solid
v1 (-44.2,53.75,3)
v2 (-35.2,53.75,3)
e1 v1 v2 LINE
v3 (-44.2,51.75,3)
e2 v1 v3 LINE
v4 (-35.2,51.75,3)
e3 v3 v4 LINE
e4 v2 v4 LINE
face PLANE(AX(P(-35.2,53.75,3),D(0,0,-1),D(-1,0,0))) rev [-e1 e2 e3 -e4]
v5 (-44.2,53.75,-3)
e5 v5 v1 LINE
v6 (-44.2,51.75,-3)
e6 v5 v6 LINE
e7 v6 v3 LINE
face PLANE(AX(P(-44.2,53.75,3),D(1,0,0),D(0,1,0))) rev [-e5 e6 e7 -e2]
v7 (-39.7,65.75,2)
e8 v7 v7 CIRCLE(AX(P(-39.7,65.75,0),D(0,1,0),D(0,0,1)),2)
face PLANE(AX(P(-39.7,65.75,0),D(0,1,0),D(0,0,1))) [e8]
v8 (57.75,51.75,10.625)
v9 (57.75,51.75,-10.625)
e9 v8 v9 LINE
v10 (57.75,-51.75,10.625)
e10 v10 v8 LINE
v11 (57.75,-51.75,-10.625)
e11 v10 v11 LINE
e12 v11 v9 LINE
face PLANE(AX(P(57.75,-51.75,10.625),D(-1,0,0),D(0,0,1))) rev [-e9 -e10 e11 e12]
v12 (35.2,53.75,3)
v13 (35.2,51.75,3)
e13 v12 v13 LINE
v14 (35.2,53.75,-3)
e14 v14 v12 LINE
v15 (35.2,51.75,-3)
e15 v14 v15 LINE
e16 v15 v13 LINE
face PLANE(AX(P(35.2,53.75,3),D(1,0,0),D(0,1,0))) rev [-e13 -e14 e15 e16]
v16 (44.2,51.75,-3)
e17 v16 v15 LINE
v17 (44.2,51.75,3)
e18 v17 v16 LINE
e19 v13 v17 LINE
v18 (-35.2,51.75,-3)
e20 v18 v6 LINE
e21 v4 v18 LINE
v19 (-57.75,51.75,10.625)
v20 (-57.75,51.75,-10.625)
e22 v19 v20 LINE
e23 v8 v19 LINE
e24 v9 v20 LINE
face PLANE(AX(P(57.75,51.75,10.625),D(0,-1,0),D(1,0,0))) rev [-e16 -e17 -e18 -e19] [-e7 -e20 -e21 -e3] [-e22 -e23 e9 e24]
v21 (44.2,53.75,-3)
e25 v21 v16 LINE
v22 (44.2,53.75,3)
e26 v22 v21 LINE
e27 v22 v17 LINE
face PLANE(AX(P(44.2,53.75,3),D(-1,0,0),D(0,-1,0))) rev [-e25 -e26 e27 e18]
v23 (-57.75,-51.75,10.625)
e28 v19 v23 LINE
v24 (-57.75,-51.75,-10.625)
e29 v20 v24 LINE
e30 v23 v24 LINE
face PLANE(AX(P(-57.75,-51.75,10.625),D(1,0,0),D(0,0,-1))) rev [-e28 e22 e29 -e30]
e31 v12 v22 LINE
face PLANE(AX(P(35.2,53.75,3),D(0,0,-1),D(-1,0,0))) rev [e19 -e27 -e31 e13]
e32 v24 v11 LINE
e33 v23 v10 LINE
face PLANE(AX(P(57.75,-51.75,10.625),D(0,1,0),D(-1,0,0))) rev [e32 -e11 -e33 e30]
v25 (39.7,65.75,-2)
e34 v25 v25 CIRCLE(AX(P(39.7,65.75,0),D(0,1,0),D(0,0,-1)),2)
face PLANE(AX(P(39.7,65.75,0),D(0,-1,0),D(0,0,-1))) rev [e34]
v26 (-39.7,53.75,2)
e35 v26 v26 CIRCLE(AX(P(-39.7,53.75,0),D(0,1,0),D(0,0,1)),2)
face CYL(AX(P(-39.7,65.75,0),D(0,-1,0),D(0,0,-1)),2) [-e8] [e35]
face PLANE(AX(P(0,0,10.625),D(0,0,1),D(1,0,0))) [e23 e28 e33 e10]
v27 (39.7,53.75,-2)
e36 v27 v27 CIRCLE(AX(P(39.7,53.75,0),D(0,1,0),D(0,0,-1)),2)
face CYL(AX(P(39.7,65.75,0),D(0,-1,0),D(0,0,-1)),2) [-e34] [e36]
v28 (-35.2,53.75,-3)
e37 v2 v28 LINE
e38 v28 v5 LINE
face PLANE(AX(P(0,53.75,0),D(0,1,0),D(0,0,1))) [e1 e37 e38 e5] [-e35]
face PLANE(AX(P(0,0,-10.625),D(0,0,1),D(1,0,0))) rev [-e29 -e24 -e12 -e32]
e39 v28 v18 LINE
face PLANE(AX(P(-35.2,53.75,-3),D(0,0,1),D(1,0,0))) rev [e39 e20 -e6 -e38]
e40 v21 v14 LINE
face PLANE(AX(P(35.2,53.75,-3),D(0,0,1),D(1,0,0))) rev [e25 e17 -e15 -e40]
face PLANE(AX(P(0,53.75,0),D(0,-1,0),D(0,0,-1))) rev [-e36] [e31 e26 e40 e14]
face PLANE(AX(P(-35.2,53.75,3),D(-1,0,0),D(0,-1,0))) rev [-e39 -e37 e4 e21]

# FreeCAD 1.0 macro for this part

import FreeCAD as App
import Part
import Sketcher

V = App.Vector
Q = App.Units.Quantity


def add_polygon(sketch, points):
    """Adds a closed chain of lines whose ends are joined by coincident constraints."""
    first, n = sketch.GeometryCount, len(points)
    for a, b in zip(points, points[1:] + points[:1]):
        sketch.addGeometry(Part.LineSegment(App.Vector(*a, 0), App.Vector(*b, 0)), False)
    for i in range(n):
        sketch.addConstraint(Sketcher.Constraint("Coincident", first + i, 2, first + (i + 1) % n, 1))

doc = App.newDocument("Part")
body = doc.addObject("PartDesign::Body", "Body")

# Sketch on XY plane
sketch1 = body.newObject("Sketcher::SketchObject", "Sketch")
sketch1.AttachmentSupport = (doc.getObject("XY_Plane"), [""])
sketch1.MapMode = "FlatFace"
add_polygon(sketch1, [(-58, 52), (-58, -52), (58, -52), (58, 52)])  # lines 0-3
sketch1.addConstraint([
    Sketcher.Constraint("Vertical", 0),
    Sketcher.Constraint("Horizontal", 1),
    Sketcher.Constraint("Vertical", 2),
    Sketcher.Constraint("Horizontal", 3),
    Sketcher.Constraint("Symmetric", 0, 2, 2, 2, -1, 1),
    Sketcher.Constraint("DistanceX", 1, 1, 1, 2, Q("115.5 mm")),
    Sketcher.Constraint("DistanceY", 0, 2, 0, 1, Q("103.5 mm")),
])
pad1 = body.newObject("PartDesign::Pad", "Pad")
pad1.Profile = sketch1
pad1.Length = 21.25
pad1.Midplane = True

# Sketch on XZ plane
sketch2 = body.newObject("Sketcher::SketchObject", "Sketch001")
sketch2.AttachmentSupport = (doc.getObject("XZ_Plane"), [""])
sketch2.MapMode = "FlatFace"
sketch2.AttachmentOffset = App.Placement(V(0, 0, -51.75), App.Rotation())
add_polygon(sketch2, [(-44, -3), (-44, 3), (-35, 3), (-35, -3)])  # lines 0-3
add_polygon(sketch2, [(35, -3), (35, 3), (44, 3), (44, -3)])  # lines 4-7
sketch2.addConstraint([
    Sketcher.Constraint("Vertical", 0),
    Sketcher.Constraint("Horizontal", 1),
    Sketcher.Constraint("Vertical", 2),
    Sketcher.Constraint("Horizontal", 3),
    Sketcher.Constraint("Vertical", 4),
    Sketcher.Constraint("Horizontal", 5),
    Sketcher.Constraint("Vertical", 6),
    Sketcher.Constraint("Horizontal", 7),
    Sketcher.Constraint("Symmetric", 2, 2, 4, 2, -1, 1),
    Sketcher.Constraint("Symmetric", 0, 2, 6, 2, -1, 1),
    Sketcher.Constraint("Horizontal", 1, 2, 4, 2),
    Sketcher.Constraint("DistanceX", 1, 1, 1, 2, Q("9 mm")),
    Sketcher.Constraint("DistanceY", 0, 1, 0, 2, Q("6 mm")),
    Sketcher.Constraint("DistanceX", 0, 2, -1, 1, Q("44.2 mm")),
])
pad2 = body.newObject("PartDesign::Pad", "Pad001")
pad2.Profile = sketch2
pad2.Length = 2
pad2.Reversed = True

# Sketch on XZ plane
sketch3 = body.newObject("Sketcher::SketchObject", "Sketch002")
sketch3.AttachmentSupport = (doc.getObject("XZ_Plane"), [""])
sketch3.MapMode = "FlatFace"
sketch3.AttachmentOffset = App.Placement(V(0, 0, -53.75), App.Rotation())
sketch3.addGeometry([
    Part.Circle(V(-39.7, 0, 0), V(0, 0, 1), 2),
    Part.Circle(V(39.7, 0, 0), V(0, 0, 1), 2),
], False)
sketch3.addConstraint([
    Sketcher.Constraint("Equal", 0, 1),
    Sketcher.Constraint("Symmetric", 0, 3, 1, 3, -1, 1),
    Sketcher.Constraint("PointOnObject", 0, 3, -1),
    Sketcher.Constraint("Diameter", 0, Q("4 mm")),
    Sketcher.Constraint("DistanceX", 0, 3, -1, 1, Q("39.7 mm")),
])
pad3 = body.newObject("PartDesign::Pad", "Pad002")
pad3.Profile = sketch3
pad3.Length = 12
pad3.Reversed = True

doc.recompute()
